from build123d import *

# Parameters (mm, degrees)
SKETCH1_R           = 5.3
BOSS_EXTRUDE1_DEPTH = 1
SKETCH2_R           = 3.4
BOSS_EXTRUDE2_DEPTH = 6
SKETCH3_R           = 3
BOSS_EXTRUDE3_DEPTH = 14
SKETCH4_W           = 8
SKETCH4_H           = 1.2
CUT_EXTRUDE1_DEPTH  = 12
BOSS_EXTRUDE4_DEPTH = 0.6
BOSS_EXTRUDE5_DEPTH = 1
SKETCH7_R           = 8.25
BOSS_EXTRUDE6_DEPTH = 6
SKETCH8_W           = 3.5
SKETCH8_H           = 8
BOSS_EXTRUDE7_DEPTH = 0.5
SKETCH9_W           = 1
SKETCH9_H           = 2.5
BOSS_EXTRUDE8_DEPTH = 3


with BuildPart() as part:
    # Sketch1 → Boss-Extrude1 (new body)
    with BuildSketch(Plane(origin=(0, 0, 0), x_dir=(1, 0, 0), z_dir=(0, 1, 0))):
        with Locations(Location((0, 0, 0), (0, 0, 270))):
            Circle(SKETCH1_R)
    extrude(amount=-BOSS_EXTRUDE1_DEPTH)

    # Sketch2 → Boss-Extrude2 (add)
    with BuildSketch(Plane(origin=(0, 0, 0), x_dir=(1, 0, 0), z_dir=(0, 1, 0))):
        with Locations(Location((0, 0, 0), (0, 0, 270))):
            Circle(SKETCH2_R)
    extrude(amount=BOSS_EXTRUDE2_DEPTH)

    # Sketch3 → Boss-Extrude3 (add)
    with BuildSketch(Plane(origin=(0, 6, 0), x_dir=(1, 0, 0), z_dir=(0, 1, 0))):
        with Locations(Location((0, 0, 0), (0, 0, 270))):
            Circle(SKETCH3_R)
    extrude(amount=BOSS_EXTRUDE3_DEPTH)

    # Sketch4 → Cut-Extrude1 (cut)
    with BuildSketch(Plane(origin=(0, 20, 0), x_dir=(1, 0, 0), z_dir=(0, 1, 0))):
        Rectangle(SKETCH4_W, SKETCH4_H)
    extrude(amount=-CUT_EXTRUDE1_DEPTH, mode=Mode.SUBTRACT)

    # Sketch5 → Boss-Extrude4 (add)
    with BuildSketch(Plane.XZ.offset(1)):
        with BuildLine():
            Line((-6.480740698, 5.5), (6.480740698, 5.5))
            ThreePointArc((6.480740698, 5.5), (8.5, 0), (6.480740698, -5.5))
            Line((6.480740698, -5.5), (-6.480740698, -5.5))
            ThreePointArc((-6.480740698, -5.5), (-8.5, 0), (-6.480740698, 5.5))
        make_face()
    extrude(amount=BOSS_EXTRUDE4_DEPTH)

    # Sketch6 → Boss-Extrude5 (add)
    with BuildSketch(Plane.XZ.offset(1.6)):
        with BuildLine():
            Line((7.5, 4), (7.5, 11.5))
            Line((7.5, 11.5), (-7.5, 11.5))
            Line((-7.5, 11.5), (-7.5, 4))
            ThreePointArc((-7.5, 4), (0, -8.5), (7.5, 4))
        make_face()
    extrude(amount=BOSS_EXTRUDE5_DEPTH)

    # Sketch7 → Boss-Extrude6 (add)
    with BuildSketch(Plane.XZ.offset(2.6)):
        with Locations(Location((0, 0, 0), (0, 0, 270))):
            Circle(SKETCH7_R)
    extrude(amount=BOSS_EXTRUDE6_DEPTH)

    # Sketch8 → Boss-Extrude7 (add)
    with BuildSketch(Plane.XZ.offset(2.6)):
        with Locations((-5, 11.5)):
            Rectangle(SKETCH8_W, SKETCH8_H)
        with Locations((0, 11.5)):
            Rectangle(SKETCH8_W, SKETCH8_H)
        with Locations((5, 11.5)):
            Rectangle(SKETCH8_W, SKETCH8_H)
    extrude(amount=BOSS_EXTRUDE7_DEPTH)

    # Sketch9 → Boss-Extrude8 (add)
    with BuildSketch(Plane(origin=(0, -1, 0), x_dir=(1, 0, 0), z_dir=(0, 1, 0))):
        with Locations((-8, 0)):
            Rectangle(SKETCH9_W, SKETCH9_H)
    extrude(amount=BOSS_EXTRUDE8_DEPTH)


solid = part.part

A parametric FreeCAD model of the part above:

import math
import FreeCAD as App
import Part
import Sketcher
from FreeCAD import Vector
Q = App.Units.Quantity

doc = App.newDocument("Part")
params = doc.addObject("Spreadsheet::Sheet", "Params")
for row, (alias, value) in enumerate([
    ("sketch1_diameter", "10.6 mm"),
    ("pad1_length", "1 mm"),
    ("sketch2_diameter", "6.8 mm"),
    ("pad2_length", "6 mm"),
    ("sketch3_diameter", "6 mm"),
    ("pad3_length", "14 mm"),
    ("sketch4_width", "8 mm"),
    ("sketch4_height", "1.2 mm"),
    ("pocket1_length", "12 mm"),
    ("sketch5_radius", "8.5 mm"),
    ("pad4_length", "0.6 mm"),
    ("sketch6_radius", "8.5 mm"),
    ("sketch6_width", "15 mm"),
    ("sketch6_height", "7.5 mm"),
    ("pad5_length", "1 mm"),
    ("sketch7_diameter", "16.5 mm"),
    ("pad6_length", "6 mm"),
    ("sketch8_height", "8 mm"),
    ("sketch8_width", "3.5 mm"),
    ("pad7_length", "0.5 mm"),
    ("sketch9_width", "1 mm"),
    ("sketch9_height", "2.5 mm"),
    ("pad8_length", "3 mm"),
], start=1):
    params.set(f"A{row}", alias)
    params.set(f"B{row}", "=" + value)
    params.setAlias(f"B{row}", alias)

body = doc.addObject("PartDesign::Body", "Body")

# Sketch on XZ plane
sketch1 = doc.addObject("Sketcher::SketchObject", "Sketch")
body.addObject(sketch1)
sketch1.AttachmentSupport = (doc.XZ_Plane, [""])
sketch1.MapMode = "FlatFace"
sketch1.addGeometry(Part.Circle(Vector(0, 0, 0), Vector(0, 0, 1), 5), False)
sketch1.addConstraint([
    Sketcher.Constraint("Coincident", 0, 3, -1, 1),
    Sketcher.Constraint("Diameter", 0, Q("10.6 mm")),
])
sketch1.setExpression("Constraints[1]", "Params.sketch1_diameter")
pad1 = doc.addObject("PartDesign::Pad", "Pad")
body.addObject(pad1)
pad1.Profile = sketch1
pad1.setExpression("Length", "Params.pad1_length")

# Sketch on XZ plane
sketch2 = doc.addObject("Sketcher::SketchObject", "Sketch001")
body.addObject(sketch2)
sketch2.AttachmentSupport = (doc.XZ_Plane, [""])
sketch2.MapMode = "FlatFace"
sketch2.addGeometry(Part.Circle(Vector(0, 0, 0), Vector(0, 0, 1), 3.4), False)
sketch2.addConstraint([
    Sketcher.Constraint("Coincident", 0, 3, -1, 1),
    Sketcher.Constraint("Diameter", 0, Q("6.8 mm")),
])
sketch2.setExpression("Constraints[1]", "Params.sketch2_diameter")
pad2 = doc.addObject("PartDesign::Pad", "Pad001")
body.addObject(pad2)
pad2.Profile = sketch2
pad2.setExpression("Length", "Params.pad2_length")
pad2.Reversed = True

# Sketch on XZ plane
sketch3 = doc.addObject("Sketcher::SketchObject", "Sketch002")
body.addObject(sketch3)
sketch3.AttachmentSupport = (doc.XZ_Plane, [""])
sketch3.MapMode = "FlatFace"
sketch3.AttachmentOffset = App.Placement(Vector(0, 0, -6), App.Rotation())
sketch3.addGeometry(Part.Circle(Vector(0, 0, 0), Vector(0, 0, 1), 3), False)
sketch3.addConstraint([
    Sketcher.Constraint("Coincident", 0, 3, -1, 1),
    Sketcher.Constraint("Diameter", 0, Q("6 mm")),
])
sketch3.setExpression("Constraints[1]", "Params.sketch3_diameter")
pad3 = doc.addObject("PartDesign::Pad", "Pad002")
body.addObject(pad3)
pad3.Profile = sketch3
pad3.setExpression("Length", "Params.pad3_length")
pad3.Reversed = True

# Sketch on XZ plane
sketch4 = doc.addObject("Sketcher::SketchObject", "Sketch003")
body.addObject(sketch4)
sketch4.AttachmentSupport = (doc.XZ_Plane, [""])
sketch4.MapMode = "FlatFace"
sketch4.AttachmentOffset = App.Placement(Vector(0, 0, -20), App.Rotation())
sketch4.addGeometry([
    Part.LineSegment(Vector(-4, -0.6, 0), Vector(-4, 0.6, 0)),
    Part.LineSegment(Vector(-4, 0.6, 0), Vector(4, 0.6, 0)),
    Part.LineSegment(Vector(4, 0.6, 0), Vector(4, -0.6, 0)),
    Part.LineSegment(Vector(4, -0.6, 0), Vector(-4, -0.6, 0)),
], False)
sketch4.addConstraint([
    Sketcher.Constraint("Coincident", 0, 2, 1, 1),
    Sketcher.Constraint("Coincident", 1, 2, 2, 1),
    Sketcher.Constraint("Coincident", 2, 2, 3, 1),
    Sketcher.Constraint("Coincident", 3, 2, 0, 1),
    Sketcher.Constraint("Vertical", 0),
    Sketcher.Constraint("Horizontal", 1),
    Sketcher.Constraint("Vertical", 2),
    Sketcher.Constraint("Horizontal", 3),
    Sketcher.Constraint("Symmetric", 0, 2, 2, 2, -1, 1),
    Sketcher.Constraint("DistanceX", 1, 1, 1, 2, Q("8 mm")),
    Sketcher.Constraint("DistanceY", 0, 1, 0, 2, Q("1.2 mm")),
])
sketch4.setExpression("Constraints[9]", "Params.sketch4_width")
sketch4.setExpression("Constraints[10]", "Params.sketch4_height")
pocket1 = doc.addObject("PartDesign::Pocket", "Pocket")
body.addObject(pocket1)
pocket1.Profile = sketch4
pocket1.setExpression("Length", "Params.pocket1_length")
pocket1.Reversed = True

# Sketch on XZ plane
sketch5 = doc.addObject("Sketcher::SketchObject", "Sketch004")
body.addObject(sketch5)
sketch5.AttachmentSupport = (doc.XZ_Plane, [""])
sketch5.MapMode = "FlatFace"
sketch5.AttachmentOffset = App.Placement(Vector(0, 0, 1), App.Rotation())
sketch5.addGeometry([
    Part.LineSegment(Vector(6, 6, 0), Vector(-6, 6, 0)),
    Part.ArcOfCircle(Part.Circle(Vector(0, 0, 0), Vector(0, 0, 1), 8), math.radians(140), math.radians(220)),
    Part.LineSegment(Vector(-6, -6, 0), Vector(6, -6, 0)),
    Part.ArcOfCircle(Part.Circle(Vector(0, 0, 0), Vector(0, 0, 1), 8), math.radians(-40), math.radians(40)),
], False)
sketch5.addConstraint([
    Sketcher.Constraint("Coincident", 0, 2, 1, 1),
    Sketcher.Constraint("Coincident", 1, 2, 2, 1),
    Sketcher.Constraint("Coincident", 2, 2, 3, 1),
    Sketcher.Constraint("Coincident", 3, 2, 0, 1),
    Sketcher.Constraint("Horizontal", 0),
    Sketcher.Constraint("Horizontal", 2),
    Sketcher.Constraint("Coincident", 1, 3, -1, 1),
    Sketcher.Constraint("Coincident", 3, 3, -1, 1),
    Sketcher.Constraint("Equal", 1, 3),
    Sketcher.Constraint("Vertical", 0, 2, 1, 2),
    Sketcher.Constraint("Radius", 1, Q("8.5 mm")),
    Sketcher.Constraint("DistanceY", 1, 2, 0, 2, Q("11 mm")),
])
sketch5.setExpression("Constraints[10]", "Params.sketch5_radius")
pad4 = doc.addObject("PartDesign::Pad", "Pad003")
body.addObject(pad4)
pad4.Profile = sketch5
pad4.setExpression("Length", "Params.pad4_length")

# Sketch on XZ plane
sketch6 = doc.addObject("Sketcher::SketchObject", "Sketch005")
body.addObject(sketch6)
sketch6.AttachmentSupport = (doc.XZ_Plane, [""])
sketch6.MapMode = "FlatFace"
sketch6.AttachmentOffset = App.Placement(Vector(0, 0, 1.6), App.Rotation())
sketch6.addGeometry([
    Part.LineSegment(Vector(8, 4, 0), Vector(8, 12, 0)),
    Part.LineSegment(Vector(8, 12, 0), Vector(-8, 12, 0)),
    Part.LineSegment(Vector(-8, 12, 0), Vector(-8, 4, 0)),
    Part.ArcOfCircle(Part.Circle(Vector(0, 0, 0), Vector(0, 0, 1), 8), math.radians(152), math.radians(388)),
], False)
sketch6.addConstraint([
    Sketcher.Constraint("Coincident", 0, 2, 1, 1),
    Sketcher.Constraint("Coincident", 1, 2, 2, 1),
    Sketcher.Constraint("Coincident", 2, 2, 3, 1),
    Sketcher.Constraint("Coincident", 3, 2, 0, 1),
    Sketcher.Constraint("Vertical", 0),
    Sketcher.Constraint("Horizontal", 1),
    Sketcher.Constraint("Vertical", 2),
    Sketcher.Constraint("Coincident", 3, 3, -1, 1),
    Sketcher.Constraint("Horizontal", 2, 2, 3, 2),
    Sketcher.Constraint("Radius", 3, Q("8.5 mm")),
    Sketcher.Constraint("DistanceX", 1, 2, 1, 1, Q("15 mm")),
    Sketcher.Constraint("DistanceY", 0, 1, 0, 2, Q("7.5 mm")),
])
sketch6.setExpression("Constraints[9]", "Params.sketch6_radius")
sketch6.setExpression("Constraints[10]", "Params.sketch6_width")
sketch6.setExpression("Constraints[11]", "Params.sketch6_height")
pad5 = doc.addObject("PartDesign::Pad", "Pad004")
body.addObject(pad5)
pad5.Profile = sketch6
pad5.setExpression("Length", "Params.pad5_length")

# Sketch on XZ plane
sketch7 = doc.addObject("Sketcher::SketchObject", "Sketch006")
body.addObject(sketch7)
sketch7.AttachmentSupport = (doc.XZ_Plane, [""])
sketch7.MapMode = "FlatFace"
sketch7.AttachmentOffset = App.Placement(Vector(0, 0, 2.6), App.Rotation())
sketch7.addGeometry(Part.Circle(Vector(0, 0, 0), Vector(0, 0, 1), 8), False)
sketch7.addConstraint([
    Sketcher.Constraint("Coincident", 0, 3, -1, 1),
    Sketcher.Constraint("Diameter", 0, Q("16.5 mm")),
])
sketch7.setExpression("Constraints[1]", "Params.sketch7_diameter")
pad6 = doc.addObject("PartDesign::Pad", "Pad005")
body.addObject(pad6)
pad6.Profile = sketch7
pad6.setExpression("Length", "Params.pad6_length")

# Sketch on XZ plane
sketch8 = doc.addObject("Sketcher::SketchObject", "Sketch007")
body.addObject(sketch8)
sketch8.AttachmentSupport = (doc.XZ_Plane, [""])
sketch8.MapMode = "FlatFace"
sketch8.AttachmentOffset = App.Placement(Vector(0, 0, 2.6), App.Rotation())
sketch8.addGeometry([
    Part.LineSegment(Vector(-6.8, 15.5, 0), Vector(-6.8, 7.5, 0)),  # 0
    Part.LineSegment(Vector(-6.8, 7.5, 0), Vector(-3.2, 7.5, 0)),  # 1
    Part.LineSegment(Vector(-3.2, 7.5, 0), Vector(-3.2, 15.5, 0)),  # 2
    Part.LineSegment(Vector(-3.2, 15.5, 0), Vector(-6.8, 15.5, 0)),  # 3
    Part.LineSegment(Vector(-1.8, 15.5, 0), Vector(-1.8, 7.5, 0)),  # 4
    Part.LineSegment(Vector(-1.8, 7.5, 0), Vector(1.8, 7.5, 0)),  # 5
    Part.LineSegment(Vector(1.8, 7.5, 0), Vector(1.8, 15.5, 0)),  # 6
    Part.LineSegment(Vector(1.8, 15.5, 0), Vector(-1.8, 15.5, 0)),  # 7
    Part.LineSegment(Vector(3.2, 15.5, 0), Vector(3.2, 7.5, 0)),  # 8
    Part.LineSegment(Vector(3.2, 7.5, 0), Vector(6.8, 7.5, 0)),  # 9
    Part.LineSegment(Vector(6.8, 7.5, 0), Vector(6.8, 15.5, 0)),  # 10
    Part.LineSegment(Vector(6.8, 15.5, 0), Vector(3.2, 15.5, 0)),  # 11
], False)
sketch8.addConstraint([
    Sketcher.Constraint("Coincident", 0, 2, 1, 1),
    Sketcher.Constraint("Coincident", 1, 2, 2, 1),
    Sketcher.Constraint("Coincident", 2, 2, 3, 1),
    Sketcher.Constraint("Coincident", 3, 2, 0, 1),
    Sketcher.Constraint("Coincident", 4, 2, 5, 1),
    Sketcher.Constraint("Coincident", 5, 2, 6, 1),
    Sketcher.Constraint("Coincident", 6, 2, 7, 1),
    Sketcher.Constraint("Coincident", 7, 2, 4, 1),
    Sketcher.Constraint("Coincident", 8, 2, 9, 1),
    Sketcher.Constraint("Coincident", 9, 2, 10, 1),
    Sketcher.Constraint("Coincident", 10, 2, 11, 1),
    Sketcher.Constraint("Coincident", 11, 2, 8, 1),
    Sketcher.Constraint("Vertical", 0),
    Sketcher.Constraint("Horizontal", 1),
    Sketcher.Constraint("Vertical", 2),
    Sketcher.Constraint("Horizontal", 3),
    Sketcher.Constraint("Vertical", 4),
    Sketcher.Constraint("Horizontal", 5),
    Sketcher.Constraint("Vertical", 6),
    Sketcher.Constraint("Horizontal", 7),
    Sketcher.Constraint("Vertical", 8),
    Sketcher.Constraint("Horizontal", 9),
    Sketcher.Constraint("Vertical", 10),
    Sketcher.Constraint("Horizontal", 11),
    Sketcher.Constraint("Symmetric", 1, 2, 8, 2, -2),
    Sketcher.Constraint("Symmetric", 3, 2, 10, 2, -2),
    Sketcher.Constraint("Horizontal", 1, 2, 4, 2),
    Sketcher.Constraint("Horizontal", 3, 2, 6, 2),
    Sketcher.Constraint("Equal", 3, 5),
    Sketcher.Constraint("DistanceY", 0, 2, 0, 1, Q("8 mm")),
    Sketcher.Constraint("DistanceX", 1, 1, 1, 2, Q("3.5 mm")),
    Sketcher.Constraint("DistanceX", 0, 2, 4, 2, Q("5 mm")),
    Sketcher.Constraint("DistanceX", 4, 2, 8, 2, Q("5 mm")),
    Sketcher.Constraint("DistanceY", -1, 1, 0, 2, Q("7.5 mm")),
])
sketch8.setExpression("Constraints[29]", "Params.sketch8_height")
sketch8.setExpression("Constraints[30]", "Params.sketch8_width")
pad7 = doc.addObject("PartDesign::Pad", "Pad006")
body.addObject(pad7)
pad7.Profile = sketch8
pad7.setExpression("Length", "Params.pad7_length")

# Sketch on XZ plane
sketch9 = doc.addObject("Sketcher::SketchObject", "Sketch008")
body.addObject(sketch9)
sketch9.AttachmentSupport = (doc.XZ_Plane, [""])
sketch9.MapMode = "FlatFace"
sketch9.AttachmentOffset = App.Placement(Vector(0, 0, 1), App.Rotation())
sketch9.addGeometry([
    Part.LineSegment(Vector(-8.5, -1.2, 0), Vector(-8.5, 1.2, 0)),
    Part.LineSegment(Vector(-8.5, 1.2, 0), Vector(-7.5, 1.2, 0)),
    Part.LineSegment(Vector(-7.5, 1.2, 0), Vector(-7.5, -1.2, 0)),
    Part.LineSegment(Vector(-7.5, -1.2, 0), Vector(-8.5, -1.2, 0)),
], False)
sketch9.addConstraint([
    Sketcher.Constraint("Coincident", 0, 2, 1, 1),
    Sketcher.Constraint("Coincident", 1, 2, 2, 1),
    Sketcher.Constraint("Coincident", 2, 2, 3, 1),
    Sketcher.Constraint("Coincident", 3, 2, 0, 1),
    Sketcher.Constraint("Vertical", 0),
    Sketcher.Constraint("Horizontal", 1),
    Sketcher.Constraint("Vertical", 2),
    Sketcher.Constraint("Horizontal", 3),
    Sketcher.Constraint("DistanceX", 1, 1, 1, 2, Q("1 mm")),
    Sketcher.Constraint("DistanceY", 0, 1, 0, 2, Q("2.5 mm")),
    Sketcher.Constraint("DistanceX", 0, 2, -1, 1, Q("8.5 mm")),
    Sketcher.Constraint("DistanceY", -1, 1, 0, 2, Q("1.25 mm")),
])
sketch9.setExpression("Constraints[8]", "Params.sketch9_width")
sketch9.setExpression("Constraints[9]", "Params.sketch9_height")
pad8 = doc.addObject("PartDesign::Pad", "Pad007")
body.addObject(pad8)
pad8.Profile = sketch9
pad8.setExpression("Length", "Params.pad8_length")
pad8.Reversed = True

doc.recompute()
